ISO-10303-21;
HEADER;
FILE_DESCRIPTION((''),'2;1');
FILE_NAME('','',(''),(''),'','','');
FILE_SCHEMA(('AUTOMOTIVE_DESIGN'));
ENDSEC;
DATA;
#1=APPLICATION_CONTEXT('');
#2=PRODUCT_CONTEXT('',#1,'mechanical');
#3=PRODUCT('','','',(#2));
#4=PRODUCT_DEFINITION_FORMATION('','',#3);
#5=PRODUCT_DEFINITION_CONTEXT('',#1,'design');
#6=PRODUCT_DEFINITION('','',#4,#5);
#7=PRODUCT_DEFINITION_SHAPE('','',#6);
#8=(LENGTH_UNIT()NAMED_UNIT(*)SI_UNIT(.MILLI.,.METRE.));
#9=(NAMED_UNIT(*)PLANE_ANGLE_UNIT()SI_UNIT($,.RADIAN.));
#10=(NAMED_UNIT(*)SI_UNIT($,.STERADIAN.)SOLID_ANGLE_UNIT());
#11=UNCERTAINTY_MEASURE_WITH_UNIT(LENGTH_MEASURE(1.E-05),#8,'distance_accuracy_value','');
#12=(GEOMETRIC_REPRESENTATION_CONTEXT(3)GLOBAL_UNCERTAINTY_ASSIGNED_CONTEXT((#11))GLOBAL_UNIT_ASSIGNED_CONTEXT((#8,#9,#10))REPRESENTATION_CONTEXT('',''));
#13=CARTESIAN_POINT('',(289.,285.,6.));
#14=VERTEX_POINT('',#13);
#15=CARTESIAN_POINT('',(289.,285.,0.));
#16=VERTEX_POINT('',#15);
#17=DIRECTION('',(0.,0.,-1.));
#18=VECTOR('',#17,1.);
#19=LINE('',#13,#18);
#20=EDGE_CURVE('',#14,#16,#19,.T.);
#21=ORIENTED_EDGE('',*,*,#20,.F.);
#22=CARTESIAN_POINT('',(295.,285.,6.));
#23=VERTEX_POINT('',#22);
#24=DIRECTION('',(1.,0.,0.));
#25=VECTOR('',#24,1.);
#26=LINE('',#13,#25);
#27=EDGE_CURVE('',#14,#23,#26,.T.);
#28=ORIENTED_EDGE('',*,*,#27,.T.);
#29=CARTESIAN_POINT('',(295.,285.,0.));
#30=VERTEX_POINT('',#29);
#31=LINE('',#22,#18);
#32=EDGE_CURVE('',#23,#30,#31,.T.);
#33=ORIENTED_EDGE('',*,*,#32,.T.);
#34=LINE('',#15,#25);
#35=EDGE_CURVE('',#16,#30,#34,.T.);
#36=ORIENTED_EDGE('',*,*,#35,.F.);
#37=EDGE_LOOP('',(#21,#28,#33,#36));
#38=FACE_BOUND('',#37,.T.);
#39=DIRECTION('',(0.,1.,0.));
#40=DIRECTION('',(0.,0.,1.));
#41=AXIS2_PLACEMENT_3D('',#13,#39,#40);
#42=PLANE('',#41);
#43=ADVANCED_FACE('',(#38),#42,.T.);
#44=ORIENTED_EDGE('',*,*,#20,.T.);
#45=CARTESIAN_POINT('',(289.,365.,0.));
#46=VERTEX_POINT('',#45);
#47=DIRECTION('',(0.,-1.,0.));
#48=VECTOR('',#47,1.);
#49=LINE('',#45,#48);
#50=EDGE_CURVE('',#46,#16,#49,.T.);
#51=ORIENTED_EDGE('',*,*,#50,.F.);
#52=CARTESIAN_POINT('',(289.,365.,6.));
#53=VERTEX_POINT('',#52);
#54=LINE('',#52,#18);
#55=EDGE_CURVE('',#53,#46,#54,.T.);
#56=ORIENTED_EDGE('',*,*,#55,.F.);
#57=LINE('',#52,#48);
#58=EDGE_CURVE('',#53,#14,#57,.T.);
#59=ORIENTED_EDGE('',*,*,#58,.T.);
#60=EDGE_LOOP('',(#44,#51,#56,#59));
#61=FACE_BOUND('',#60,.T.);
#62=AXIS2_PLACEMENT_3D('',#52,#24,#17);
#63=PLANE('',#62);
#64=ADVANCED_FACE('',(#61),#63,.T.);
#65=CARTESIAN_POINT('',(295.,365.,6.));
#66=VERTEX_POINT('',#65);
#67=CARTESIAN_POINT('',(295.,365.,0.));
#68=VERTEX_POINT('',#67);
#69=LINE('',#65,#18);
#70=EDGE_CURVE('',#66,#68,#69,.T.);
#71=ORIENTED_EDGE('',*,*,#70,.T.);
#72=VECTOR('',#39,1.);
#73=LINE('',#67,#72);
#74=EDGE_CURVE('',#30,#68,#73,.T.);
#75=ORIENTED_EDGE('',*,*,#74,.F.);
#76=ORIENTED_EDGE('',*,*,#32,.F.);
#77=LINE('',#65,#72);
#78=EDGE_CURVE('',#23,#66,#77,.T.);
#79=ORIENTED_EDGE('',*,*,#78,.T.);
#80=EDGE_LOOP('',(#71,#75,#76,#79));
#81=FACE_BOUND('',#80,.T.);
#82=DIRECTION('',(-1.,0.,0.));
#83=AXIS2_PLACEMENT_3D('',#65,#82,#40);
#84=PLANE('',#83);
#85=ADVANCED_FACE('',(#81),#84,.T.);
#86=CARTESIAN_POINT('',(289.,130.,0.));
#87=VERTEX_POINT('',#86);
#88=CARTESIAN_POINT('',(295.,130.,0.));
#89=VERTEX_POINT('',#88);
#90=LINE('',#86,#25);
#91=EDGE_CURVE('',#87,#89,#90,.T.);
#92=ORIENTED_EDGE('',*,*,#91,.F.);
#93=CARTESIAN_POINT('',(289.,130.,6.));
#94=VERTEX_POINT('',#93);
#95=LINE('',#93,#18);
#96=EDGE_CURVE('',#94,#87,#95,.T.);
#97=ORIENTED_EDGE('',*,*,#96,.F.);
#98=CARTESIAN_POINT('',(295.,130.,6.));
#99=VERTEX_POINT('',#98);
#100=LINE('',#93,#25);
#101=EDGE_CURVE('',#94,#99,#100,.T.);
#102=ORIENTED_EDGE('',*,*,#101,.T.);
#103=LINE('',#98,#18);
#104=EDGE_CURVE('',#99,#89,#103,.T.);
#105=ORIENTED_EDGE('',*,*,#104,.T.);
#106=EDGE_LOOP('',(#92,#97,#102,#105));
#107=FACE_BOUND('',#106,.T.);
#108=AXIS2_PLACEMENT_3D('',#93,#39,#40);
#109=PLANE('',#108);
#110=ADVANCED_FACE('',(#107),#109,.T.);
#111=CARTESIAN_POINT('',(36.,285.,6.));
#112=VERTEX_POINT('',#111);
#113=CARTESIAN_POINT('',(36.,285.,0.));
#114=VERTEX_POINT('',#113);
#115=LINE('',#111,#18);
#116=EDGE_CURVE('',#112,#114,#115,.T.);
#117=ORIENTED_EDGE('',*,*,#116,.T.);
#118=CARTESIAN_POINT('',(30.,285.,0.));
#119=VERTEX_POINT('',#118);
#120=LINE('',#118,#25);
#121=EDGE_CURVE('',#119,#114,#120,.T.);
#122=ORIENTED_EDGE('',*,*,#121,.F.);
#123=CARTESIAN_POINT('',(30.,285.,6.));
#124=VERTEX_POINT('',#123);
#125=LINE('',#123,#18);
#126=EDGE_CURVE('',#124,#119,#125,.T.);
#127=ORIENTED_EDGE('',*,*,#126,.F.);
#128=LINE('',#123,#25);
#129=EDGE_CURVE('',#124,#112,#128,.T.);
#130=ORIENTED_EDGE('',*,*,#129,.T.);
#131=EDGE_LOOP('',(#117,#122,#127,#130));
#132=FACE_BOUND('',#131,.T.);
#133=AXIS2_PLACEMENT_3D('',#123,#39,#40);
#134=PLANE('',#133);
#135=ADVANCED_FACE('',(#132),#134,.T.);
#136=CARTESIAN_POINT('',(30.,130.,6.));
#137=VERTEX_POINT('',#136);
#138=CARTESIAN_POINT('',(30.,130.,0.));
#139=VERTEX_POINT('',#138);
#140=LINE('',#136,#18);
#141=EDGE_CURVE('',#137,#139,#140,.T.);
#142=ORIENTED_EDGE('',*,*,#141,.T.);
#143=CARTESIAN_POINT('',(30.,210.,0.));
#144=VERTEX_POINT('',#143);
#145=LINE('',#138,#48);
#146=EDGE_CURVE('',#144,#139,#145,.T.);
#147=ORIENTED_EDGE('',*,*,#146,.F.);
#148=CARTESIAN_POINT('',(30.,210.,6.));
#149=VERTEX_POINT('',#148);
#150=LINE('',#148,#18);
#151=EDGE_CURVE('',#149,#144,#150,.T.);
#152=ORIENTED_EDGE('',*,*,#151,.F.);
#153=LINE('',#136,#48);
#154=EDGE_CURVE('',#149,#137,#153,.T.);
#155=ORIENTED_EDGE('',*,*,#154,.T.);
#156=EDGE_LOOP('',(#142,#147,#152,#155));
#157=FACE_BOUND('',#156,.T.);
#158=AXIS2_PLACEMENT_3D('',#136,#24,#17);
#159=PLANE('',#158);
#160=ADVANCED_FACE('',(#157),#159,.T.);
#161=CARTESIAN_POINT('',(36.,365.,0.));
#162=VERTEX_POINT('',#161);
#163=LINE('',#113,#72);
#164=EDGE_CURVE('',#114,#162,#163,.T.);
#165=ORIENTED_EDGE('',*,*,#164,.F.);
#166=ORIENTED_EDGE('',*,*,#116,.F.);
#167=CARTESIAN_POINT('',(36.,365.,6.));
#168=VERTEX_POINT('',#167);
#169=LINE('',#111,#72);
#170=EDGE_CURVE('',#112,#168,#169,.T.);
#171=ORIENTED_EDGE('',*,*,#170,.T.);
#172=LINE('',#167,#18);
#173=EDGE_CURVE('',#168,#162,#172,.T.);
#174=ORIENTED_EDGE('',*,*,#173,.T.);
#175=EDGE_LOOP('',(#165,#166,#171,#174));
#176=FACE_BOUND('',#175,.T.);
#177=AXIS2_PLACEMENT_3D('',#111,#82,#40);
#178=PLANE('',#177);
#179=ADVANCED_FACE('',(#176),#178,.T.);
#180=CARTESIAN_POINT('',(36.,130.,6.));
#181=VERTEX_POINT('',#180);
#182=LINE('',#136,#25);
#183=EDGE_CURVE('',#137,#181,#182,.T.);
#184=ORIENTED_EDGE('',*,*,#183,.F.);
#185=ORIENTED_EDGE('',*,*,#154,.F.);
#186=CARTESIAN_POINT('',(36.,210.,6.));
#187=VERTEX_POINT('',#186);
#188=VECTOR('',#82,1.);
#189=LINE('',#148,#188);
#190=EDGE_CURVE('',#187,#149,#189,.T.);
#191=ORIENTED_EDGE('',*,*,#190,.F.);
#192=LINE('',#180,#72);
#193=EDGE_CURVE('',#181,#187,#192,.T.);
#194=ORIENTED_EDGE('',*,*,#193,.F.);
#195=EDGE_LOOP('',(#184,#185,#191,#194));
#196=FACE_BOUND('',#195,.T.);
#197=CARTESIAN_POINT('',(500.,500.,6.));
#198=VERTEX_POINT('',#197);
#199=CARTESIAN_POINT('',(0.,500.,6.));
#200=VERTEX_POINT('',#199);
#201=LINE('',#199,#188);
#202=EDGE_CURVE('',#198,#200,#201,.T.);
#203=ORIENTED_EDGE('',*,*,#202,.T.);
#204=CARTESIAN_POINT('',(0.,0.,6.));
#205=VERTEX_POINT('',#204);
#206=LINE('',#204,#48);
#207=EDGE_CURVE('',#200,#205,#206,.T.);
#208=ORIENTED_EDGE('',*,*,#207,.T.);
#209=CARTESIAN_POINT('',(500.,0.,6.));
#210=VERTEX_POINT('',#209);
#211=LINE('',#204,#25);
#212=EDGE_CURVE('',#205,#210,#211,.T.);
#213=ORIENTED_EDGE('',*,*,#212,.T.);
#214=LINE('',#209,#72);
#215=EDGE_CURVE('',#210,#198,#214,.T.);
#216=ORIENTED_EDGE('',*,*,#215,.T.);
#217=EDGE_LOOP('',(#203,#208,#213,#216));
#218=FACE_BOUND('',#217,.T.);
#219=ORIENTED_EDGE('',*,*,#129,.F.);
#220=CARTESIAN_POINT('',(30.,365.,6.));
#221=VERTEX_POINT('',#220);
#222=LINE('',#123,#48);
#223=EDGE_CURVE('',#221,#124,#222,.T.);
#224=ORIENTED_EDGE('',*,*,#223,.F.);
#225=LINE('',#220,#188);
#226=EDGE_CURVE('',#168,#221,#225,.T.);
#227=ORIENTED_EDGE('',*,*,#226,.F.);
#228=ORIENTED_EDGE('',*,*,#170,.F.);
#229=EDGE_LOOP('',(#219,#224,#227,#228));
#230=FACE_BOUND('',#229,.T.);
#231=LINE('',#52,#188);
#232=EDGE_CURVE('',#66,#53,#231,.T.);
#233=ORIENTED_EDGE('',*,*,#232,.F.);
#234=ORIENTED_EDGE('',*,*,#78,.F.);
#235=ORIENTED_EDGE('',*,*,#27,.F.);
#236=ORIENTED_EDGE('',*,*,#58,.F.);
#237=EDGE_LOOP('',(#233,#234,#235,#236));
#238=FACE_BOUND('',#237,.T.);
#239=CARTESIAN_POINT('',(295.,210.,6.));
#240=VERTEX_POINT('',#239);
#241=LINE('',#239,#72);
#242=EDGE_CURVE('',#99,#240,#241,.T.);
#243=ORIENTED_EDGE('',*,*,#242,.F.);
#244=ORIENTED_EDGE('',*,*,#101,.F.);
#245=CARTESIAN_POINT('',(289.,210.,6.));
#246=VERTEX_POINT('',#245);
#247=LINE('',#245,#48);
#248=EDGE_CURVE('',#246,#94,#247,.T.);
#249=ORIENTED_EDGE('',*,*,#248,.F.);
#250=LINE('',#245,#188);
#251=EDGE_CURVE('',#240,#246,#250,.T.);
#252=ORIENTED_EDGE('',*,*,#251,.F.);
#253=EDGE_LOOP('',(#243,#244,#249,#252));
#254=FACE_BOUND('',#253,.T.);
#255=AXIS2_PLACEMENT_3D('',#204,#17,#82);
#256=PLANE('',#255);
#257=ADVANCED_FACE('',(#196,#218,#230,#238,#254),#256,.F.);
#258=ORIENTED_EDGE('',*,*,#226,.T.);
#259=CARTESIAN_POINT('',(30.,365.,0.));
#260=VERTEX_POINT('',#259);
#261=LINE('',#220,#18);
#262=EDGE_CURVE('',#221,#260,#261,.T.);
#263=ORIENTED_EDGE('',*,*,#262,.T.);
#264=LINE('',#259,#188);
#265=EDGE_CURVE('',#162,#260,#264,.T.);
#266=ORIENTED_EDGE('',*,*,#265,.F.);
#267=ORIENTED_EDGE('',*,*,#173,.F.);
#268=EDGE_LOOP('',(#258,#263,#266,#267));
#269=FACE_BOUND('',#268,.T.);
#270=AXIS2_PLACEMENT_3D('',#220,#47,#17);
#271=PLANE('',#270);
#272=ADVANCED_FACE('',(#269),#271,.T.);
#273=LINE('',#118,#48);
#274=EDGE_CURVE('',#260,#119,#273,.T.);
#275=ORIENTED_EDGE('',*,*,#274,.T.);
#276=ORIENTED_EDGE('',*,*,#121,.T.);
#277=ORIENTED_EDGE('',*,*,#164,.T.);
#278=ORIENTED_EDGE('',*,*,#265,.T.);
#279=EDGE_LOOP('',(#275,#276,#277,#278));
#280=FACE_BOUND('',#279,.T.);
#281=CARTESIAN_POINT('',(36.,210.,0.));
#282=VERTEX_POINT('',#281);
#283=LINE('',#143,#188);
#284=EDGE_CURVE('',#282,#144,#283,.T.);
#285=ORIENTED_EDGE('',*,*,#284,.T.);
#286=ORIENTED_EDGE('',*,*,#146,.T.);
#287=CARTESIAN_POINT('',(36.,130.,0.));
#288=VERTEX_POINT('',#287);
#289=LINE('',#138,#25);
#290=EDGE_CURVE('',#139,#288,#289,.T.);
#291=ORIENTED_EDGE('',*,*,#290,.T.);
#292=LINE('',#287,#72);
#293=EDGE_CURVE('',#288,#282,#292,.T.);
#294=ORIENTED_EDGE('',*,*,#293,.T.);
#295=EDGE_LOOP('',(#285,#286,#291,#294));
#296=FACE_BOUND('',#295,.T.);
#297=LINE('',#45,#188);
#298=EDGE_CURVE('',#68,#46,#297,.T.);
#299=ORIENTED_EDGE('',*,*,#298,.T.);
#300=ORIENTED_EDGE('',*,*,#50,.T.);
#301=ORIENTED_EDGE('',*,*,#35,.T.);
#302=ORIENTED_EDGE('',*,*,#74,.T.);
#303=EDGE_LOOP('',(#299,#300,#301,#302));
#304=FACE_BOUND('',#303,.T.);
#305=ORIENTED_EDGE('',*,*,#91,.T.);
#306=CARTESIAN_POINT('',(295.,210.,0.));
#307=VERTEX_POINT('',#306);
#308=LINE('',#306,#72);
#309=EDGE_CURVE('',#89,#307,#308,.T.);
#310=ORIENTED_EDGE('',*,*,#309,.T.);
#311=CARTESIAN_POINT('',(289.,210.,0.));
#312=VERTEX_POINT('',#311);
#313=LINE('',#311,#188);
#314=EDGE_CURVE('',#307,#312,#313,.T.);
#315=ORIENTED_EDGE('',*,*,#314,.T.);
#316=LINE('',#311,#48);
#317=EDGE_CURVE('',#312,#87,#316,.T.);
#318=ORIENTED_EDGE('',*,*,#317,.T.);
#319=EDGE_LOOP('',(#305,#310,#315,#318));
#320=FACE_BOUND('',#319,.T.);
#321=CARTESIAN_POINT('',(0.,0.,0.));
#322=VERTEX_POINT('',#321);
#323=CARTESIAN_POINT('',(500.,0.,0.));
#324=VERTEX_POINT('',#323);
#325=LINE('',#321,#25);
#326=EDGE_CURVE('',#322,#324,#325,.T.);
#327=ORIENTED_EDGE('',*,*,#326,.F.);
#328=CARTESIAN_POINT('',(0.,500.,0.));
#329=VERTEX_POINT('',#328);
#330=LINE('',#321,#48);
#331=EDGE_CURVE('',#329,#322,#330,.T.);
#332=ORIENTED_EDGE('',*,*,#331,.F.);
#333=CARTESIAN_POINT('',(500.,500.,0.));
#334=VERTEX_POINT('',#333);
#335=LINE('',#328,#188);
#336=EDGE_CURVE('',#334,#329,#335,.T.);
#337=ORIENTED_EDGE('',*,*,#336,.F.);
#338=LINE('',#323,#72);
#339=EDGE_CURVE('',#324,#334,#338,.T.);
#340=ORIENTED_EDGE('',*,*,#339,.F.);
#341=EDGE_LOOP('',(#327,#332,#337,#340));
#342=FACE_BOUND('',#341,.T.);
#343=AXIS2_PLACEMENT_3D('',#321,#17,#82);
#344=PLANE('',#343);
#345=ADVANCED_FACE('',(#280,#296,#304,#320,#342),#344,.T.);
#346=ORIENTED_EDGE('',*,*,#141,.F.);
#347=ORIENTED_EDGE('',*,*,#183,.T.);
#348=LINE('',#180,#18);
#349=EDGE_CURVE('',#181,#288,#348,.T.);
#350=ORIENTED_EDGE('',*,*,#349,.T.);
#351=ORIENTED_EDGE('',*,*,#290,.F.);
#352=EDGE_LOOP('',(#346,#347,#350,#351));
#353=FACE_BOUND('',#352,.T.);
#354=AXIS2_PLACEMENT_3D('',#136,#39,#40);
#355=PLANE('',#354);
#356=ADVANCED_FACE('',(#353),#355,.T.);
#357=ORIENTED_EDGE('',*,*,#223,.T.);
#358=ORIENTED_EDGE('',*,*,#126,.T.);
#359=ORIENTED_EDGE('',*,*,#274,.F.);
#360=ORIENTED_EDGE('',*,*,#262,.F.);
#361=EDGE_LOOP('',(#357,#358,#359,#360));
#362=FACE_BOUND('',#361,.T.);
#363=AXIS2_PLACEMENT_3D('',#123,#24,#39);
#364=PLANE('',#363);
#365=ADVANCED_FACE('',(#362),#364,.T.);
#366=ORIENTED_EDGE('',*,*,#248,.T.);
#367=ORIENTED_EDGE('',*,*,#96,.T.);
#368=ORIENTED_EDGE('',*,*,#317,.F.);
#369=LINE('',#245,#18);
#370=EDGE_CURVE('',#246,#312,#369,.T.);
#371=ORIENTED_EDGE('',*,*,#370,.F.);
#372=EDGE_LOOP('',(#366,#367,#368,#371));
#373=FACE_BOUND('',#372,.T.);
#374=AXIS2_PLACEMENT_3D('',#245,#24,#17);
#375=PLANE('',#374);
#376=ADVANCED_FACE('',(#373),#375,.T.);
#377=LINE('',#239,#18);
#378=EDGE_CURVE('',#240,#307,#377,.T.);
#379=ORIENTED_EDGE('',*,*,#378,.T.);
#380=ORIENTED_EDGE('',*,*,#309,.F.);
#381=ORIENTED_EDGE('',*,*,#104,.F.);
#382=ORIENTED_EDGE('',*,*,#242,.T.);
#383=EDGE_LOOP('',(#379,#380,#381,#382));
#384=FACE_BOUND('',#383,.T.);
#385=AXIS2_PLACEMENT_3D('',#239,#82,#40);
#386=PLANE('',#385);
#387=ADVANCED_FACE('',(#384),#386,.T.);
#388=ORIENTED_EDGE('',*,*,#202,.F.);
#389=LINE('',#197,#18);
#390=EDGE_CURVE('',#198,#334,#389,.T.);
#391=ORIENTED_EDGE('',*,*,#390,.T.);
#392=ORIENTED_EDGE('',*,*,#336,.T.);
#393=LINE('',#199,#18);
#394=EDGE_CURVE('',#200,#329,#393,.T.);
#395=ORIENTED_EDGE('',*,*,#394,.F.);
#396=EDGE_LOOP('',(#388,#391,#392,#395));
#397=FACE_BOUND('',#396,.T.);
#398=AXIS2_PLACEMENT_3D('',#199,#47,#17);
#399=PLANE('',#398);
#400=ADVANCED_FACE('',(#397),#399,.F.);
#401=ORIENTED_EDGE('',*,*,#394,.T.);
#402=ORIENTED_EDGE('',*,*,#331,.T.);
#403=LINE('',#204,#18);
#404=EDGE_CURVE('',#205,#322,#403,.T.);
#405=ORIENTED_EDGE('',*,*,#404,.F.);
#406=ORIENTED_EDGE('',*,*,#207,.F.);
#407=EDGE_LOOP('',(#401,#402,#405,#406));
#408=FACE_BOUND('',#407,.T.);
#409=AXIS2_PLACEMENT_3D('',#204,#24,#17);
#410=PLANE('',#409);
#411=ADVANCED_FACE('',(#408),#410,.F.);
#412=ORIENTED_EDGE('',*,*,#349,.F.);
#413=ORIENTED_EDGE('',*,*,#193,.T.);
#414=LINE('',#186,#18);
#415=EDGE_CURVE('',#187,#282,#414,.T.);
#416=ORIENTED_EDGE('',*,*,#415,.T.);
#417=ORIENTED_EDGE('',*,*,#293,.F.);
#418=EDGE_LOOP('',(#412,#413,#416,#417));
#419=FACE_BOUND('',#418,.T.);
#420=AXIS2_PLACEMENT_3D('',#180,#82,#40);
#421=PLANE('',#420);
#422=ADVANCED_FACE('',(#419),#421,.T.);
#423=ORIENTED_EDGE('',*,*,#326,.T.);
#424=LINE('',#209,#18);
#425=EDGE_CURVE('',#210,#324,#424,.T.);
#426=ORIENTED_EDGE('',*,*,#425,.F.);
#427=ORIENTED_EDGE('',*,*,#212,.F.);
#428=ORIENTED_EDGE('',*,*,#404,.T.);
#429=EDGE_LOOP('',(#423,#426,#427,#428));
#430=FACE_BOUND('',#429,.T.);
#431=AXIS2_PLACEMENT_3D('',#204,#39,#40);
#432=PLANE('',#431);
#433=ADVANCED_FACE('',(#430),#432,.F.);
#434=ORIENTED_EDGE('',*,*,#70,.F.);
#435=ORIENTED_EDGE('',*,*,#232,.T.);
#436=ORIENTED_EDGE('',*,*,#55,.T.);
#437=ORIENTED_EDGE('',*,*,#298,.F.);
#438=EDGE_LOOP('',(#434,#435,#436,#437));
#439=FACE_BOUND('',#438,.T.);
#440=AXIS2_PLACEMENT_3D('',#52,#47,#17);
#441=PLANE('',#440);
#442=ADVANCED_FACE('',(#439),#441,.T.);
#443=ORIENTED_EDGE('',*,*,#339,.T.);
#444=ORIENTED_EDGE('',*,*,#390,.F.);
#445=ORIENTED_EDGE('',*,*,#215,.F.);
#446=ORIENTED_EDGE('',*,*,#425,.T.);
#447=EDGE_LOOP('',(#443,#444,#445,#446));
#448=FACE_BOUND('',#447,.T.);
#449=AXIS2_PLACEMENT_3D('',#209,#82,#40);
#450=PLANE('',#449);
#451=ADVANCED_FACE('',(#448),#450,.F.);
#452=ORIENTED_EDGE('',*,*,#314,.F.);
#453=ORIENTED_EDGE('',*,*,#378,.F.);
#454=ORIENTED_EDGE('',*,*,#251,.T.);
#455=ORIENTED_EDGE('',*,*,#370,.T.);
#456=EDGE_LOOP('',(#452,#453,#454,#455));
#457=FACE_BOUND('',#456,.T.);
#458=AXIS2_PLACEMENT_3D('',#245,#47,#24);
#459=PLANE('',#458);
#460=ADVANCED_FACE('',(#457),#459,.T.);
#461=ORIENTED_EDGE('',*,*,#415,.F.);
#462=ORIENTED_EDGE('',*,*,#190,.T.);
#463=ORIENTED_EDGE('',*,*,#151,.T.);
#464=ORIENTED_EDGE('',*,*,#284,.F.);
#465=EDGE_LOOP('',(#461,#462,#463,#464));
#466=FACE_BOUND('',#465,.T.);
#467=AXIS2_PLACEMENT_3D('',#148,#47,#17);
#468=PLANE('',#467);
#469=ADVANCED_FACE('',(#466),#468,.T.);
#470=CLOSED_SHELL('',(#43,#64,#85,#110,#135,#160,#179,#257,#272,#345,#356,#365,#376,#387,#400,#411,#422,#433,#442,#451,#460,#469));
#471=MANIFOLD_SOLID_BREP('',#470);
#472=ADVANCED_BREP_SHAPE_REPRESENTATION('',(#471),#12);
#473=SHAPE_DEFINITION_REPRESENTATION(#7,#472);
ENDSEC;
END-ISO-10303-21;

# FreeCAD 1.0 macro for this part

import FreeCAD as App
import Part
import Sketcher
Q = App.Units.Quantity


def add_polygon(sketch, points):
    """Adds a closed chain of lines whose ends are joined by coincident constraints."""
    first, n = sketch.GeometryCount, len(points)
    for a, b in zip(points, points[1:] + points[:1]):
        sketch.addGeometry(Part.LineSegment(App.Vector(*a, 0), App.Vector(*b, 0)), False)
    for i in range(n):
        sketch.addConstraint(Sketcher.Constraint("Coincident", first + i, 2, first + (i + 1) % n, 1))

doc = App.newDocument("Part")
body = doc.addObject("PartDesign::Body", "Body")

sketch1 = doc.addObject("Sketcher::SketchObject", "Sketch")
body.addObject(sketch1)
sketch1.AttachmentSupport = (doc.XY_Plane, [""])
sketch1.MapMode = "FlatFace"
add_polygon(sketch1, [(0, 500), (0, 0), (500, 0), (500, 500)])
add_polygon(sketch1, [(36, 130), (30, 130), (30, 210), (36, 210)])
add_polygon(sketch1, [(295, 130), (289, 130), (289, 210), (295, 210)])
add_polygon(sketch1, [(36, 285), (30, 285), (30, 365), (36, 365)])
add_polygon(sketch1, [(295, 285), (289, 285), (289, 365), (295, 365)])
sketch1.addConstraint([
    Sketcher.Constraint("Vertical", 0),
    Sketcher.Constraint("Horizontal", 1),
    Sketcher.Constraint("Vertical", 2),
    Sketcher.Constraint("Horizontal", 3),
    Sketcher.Constraint("Horizontal", 4),
    Sketcher.Constraint("Vertical", 5),
    Sketcher.Constraint("Horizontal", 6),
    Sketcher.Constraint("Vertical", 7),
    Sketcher.Constraint("Horizontal", 8),
    Sketcher.Constraint("Vertical", 9),
    Sketcher.Constraint("Horizontal", 10),
    Sketcher.Constraint("Vertical", 11),
    Sketcher.Constraint("Horizontal", 12),
    Sketcher.Constraint("Vertical", 13),
    Sketcher.Constraint("Horizontal", 14),
    Sketcher.Constraint("Vertical", 15),
    Sketcher.Constraint("Horizontal", 16),
    Sketcher.Constraint("Vertical", 17),
    Sketcher.Constraint("Horizontal", 18),
    Sketcher.Constraint("Vertical", 19),
    Sketcher.Constraint("Coincident", 0, 2, -1, 1),
    Sketcher.Constraint("Horizontal", 7, 2, 8, 2),
    Sketcher.Constraint("Horizontal", 6, 2, 9, 2),
    Sketcher.Constraint("Horizontal", 15, 2, 16, 2),
    Sketcher.Constraint("Horizontal", 14, 2, 17, 2),
    Sketcher.Constraint("Vertical", 5, 2, 12, 2),
    Sketcher.Constraint("Vertical", 7, 2, 14, 2),
    Sketcher.Constraint("Vertical", 9, 2, 16, 2),
    Sketcher.Constraint("Vertical", 11, 2, 18, 2),
    Sketcher.Constraint("Equal", 6, 8),
    Sketcher.Constraint("Equal", 3, 0),
    Sketcher.Constraint("Equal", 11, 13),
    Sketcher.Constraint("DistanceX", 1, 1, 1, 2, Q("500 mm")),
    Sketcher.Constraint("DistanceX", 4, 2, 4, 1, Q("6 mm")),
    Sketcher.Constraint("DistanceY", 5, 1, 5, 2, Q("80 mm")),
    Sketcher.Constraint("DistanceX", -1, 1, 4, 2, Q("30 mm")),
    Sketcher.Constraint("DistanceY", -1, 1, 4, 2, Q("130 mm")),
    Sketcher.Constraint("DistanceX", -1, 1, 8, 2, Q("289 mm")),
    Sketcher.Constraint("DistanceY", -1, 1, 12, 2, Q("285 mm")),
])
pad1 = doc.addObject("PartDesign::Pad", "Pad")
body.addObject(pad1)
pad1.Profile = sketch1
pad1.Length = 6

doc.recompute()
